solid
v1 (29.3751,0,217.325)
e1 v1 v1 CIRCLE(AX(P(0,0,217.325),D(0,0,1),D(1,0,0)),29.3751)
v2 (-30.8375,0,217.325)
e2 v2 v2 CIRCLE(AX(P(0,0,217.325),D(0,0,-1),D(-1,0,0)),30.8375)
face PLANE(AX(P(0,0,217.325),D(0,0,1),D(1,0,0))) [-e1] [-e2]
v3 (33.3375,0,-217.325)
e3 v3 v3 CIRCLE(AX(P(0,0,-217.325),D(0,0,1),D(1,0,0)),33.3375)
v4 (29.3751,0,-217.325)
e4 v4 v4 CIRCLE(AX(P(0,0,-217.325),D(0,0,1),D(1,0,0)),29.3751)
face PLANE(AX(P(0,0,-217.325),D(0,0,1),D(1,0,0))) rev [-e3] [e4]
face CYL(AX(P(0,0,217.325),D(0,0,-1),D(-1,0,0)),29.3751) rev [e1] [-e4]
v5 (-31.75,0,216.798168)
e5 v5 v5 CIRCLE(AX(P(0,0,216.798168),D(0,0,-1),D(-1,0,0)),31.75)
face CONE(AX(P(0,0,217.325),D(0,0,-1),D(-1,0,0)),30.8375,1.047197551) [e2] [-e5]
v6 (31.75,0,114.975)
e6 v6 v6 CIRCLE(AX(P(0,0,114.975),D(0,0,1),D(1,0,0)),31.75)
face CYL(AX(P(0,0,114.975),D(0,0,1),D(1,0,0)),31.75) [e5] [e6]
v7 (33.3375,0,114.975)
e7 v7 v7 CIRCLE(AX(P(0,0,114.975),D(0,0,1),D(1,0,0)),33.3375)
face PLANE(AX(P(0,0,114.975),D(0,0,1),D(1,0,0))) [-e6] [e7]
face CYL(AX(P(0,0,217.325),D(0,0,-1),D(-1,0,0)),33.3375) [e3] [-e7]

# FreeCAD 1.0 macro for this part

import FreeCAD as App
import Part
import Sketcher
Q = App.Units.Quantity


def add_polygon(sketch, points):
    """Adds a closed chain of lines whose ends are joined by coincident constraints."""
    first, n = sketch.GeometryCount, len(points)
    for a, b in zip(points, points[1:] + points[:1]):
        sketch.addGeometry(Part.LineSegment(App.Vector(*a, 0), App.Vector(*b, 0)), False)
    for i in range(n):
        sketch.addConstraint(Sketcher.Constraint("Coincident", first + i, 2, first + (i + 1) % n, 1))

doc = App.newDocument("Part")
body = doc.addObject("PartDesign::Body", "Body")

# Sketch on XY plane
sketch1 = body.newObject("Sketcher::SketchObject", "Sketch")
sketch1.AttachmentSupport = (doc.getObject("XY_Plane"), [""])
sketch1.MapMode = "FlatFace"
sketch1.addGeometry([
    Part.Circle(App.Vector(0, 0, 0), App.Vector(0, 0, 1), 33),
    Part.Circle(App.Vector(0, 0, 0), App.Vector(0, 0, 1), 29),
], False)
sketch1.addConstraint([
    Sketcher.Constraint("Coincident", 0, 3, -1, 1),
    Sketcher.Constraint("Coincident", 1, 3, -1, 1),
    Sketcher.Constraint("Diameter", 0, Q("2.625 in")),
    Sketcher.Constraint("Diameter", 1, Q("2.313 in")),
])
pad1 = body.newObject("PartDesign::Pad", "Pad")
pad1.Profile = sketch1
pad1.Length = 434.65
pad1.Midplane = True

# Sketch on YZ plane
sketch2 = body.newObject("Sketcher::SketchObject", "Sketch001")
sketch2.AttachmentSupport = (doc.getObject("YZ_Plane"), [""])
sketch2.MapMode = "FlatFace"
add_polygon(sketch2, [(30.8, 217.3), (33.3, 215.9), (33.3, 217.3)])  # lines 0-2
sketch2.addConstraint([
    Sketcher.Constraint("Vertical", 1),
    Sketcher.Constraint("Horizontal", 2),
    Sketcher.Constraint("Angle", 0, Q("-30 deg")),
    Sketcher.Constraint("DistanceX", -1, 1, 0, 2, Q("1.3125 in")),
    Sketcher.Constraint("DistanceX", 2, 2, 2, 1, 2.5),
    Sketcher.Constraint("DistanceY", -1, 1, 1, 2, 217.325),
])
groove = body.newObject("PartDesign::Groove", "Groove")
groove.Profile = sketch2
groove.ReferenceAxis = (sketch2, ["V_Axis"])
groove.Angle = 360

# Sketch on XY plane
sketch3 = body.newObject("Sketcher::SketchObject", "Sketch002")
sketch3.AttachmentSupport = (doc.getObject("XY_Plane"), [""])
sketch3.MapMode = "FlatFace"
sketch3.AttachmentOffset = App.Placement(App.Vector(0, 0, 217.325), App.Rotation())
sketch3.addGeometry([
    Part.Circle(App.Vector(0, 0, 0), App.Vector(0, 0, 1), 33),
    Part.Circle(App.Vector(0, 0, 0), App.Vector(0, 0, 1), 32),
], False)
sketch3.addConstraint([
    Sketcher.Constraint("Coincident", 0, 3, -1, 1),
    Sketcher.Constraint("Coincident", 1, 3, -1, 1),
    Sketcher.Constraint("Diameter", 1, Q("2.5 in")),
    Sketcher.Constraint("Diameter", 0, Q("2.625 in")),
])
pocket1 = body.newObject("PartDesign::Pocket", "Pocket")
pocket1.Profile = sketch3
pocket1.Length = 102.35

doc.recompute()
